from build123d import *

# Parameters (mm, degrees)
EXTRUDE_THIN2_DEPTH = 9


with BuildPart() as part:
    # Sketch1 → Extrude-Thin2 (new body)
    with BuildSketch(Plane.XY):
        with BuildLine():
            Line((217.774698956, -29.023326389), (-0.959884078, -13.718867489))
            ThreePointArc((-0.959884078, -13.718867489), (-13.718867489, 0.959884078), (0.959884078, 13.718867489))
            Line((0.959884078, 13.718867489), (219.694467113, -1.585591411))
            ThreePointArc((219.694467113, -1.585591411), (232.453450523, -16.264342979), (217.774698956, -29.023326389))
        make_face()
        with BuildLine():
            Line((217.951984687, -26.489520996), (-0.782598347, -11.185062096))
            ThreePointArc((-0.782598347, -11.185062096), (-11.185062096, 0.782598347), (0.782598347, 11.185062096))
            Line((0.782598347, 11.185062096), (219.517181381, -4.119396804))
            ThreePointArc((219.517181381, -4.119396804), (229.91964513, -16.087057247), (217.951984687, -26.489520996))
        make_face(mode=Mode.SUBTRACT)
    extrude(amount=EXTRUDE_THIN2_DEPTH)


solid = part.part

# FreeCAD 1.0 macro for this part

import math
import FreeCAD as App
import Part
import Sketcher
Q = App.Units.Quantity

doc = App.newDocument("Part")
body = doc.addObject("PartDesign::Body", "Body")

# Sketch on XY plane
sketch1 = body.newObject("Sketcher::SketchObject", "Sketch")
sketch1.AttachmentSupport = (doc.getObject("XY_Plane"), [""])
sketch1.MapMode = "FlatFace"
sketch1.addGeometry([
    Part.LineSegment(App.Vector(-0.959884, -13.718867, 0), App.Vector(217.774699, -29.023326, 0)),  # 0
    Part.ArcOfCircle(Part.Circle(App.Vector(218.734583, -15.304459, 0), App.Vector(0, 0, 1), 13.752407), math.radians(-94.002358), math.radians(85.997642)),  # 1
    Part.LineSegment(App.Vector(219.694467, -1.585591, 0), App.Vector(0.959884, 13.718867, 0)),  # 2
    Part.ArcOfCircle(Part.Circle(App.Vector(0, 0, 0), App.Vector(0, 0, 1), 13.752407), math.radians(85.997642), math.radians(265.997642)),  # 3
    Part.LineSegment(App.Vector(217.951985, -26.489521, 0), App.Vector(-0.782598, -11.185062, 0)),  # 4
    Part.ArcOfCircle(Part.Circle(App.Vector(0, 0, 0), App.Vector(0, 0, 1), 11.212407), math.radians(85.997642), math.radians(265.997642)),  # 5
    Part.LineSegment(App.Vector(0.782598, 11.185062, 0), App.Vector(219.517181, -4.119397, 0)),  # 6
    Part.ArcOfCircle(Part.Circle(App.Vector(218.734583, -15.304459, 0), App.Vector(0, 0, 1), 11.212407), math.radians(-94.002358), math.radians(85.997642)),  # 7
], False)
sketch1.addConstraint([
    Sketcher.Constraint("Tangent", 0, 2, 1, 1),
    Sketcher.Constraint("Tangent", 1, 2, 2, 1),
    Sketcher.Constraint("Tangent", 2, 2, 3, 1),
    Sketcher.Constraint("Tangent", 3, 2, 0, 1),
    Sketcher.Constraint("Tangent", 4, 2, 5, 2),
    Sketcher.Constraint("Tangent", 5, 1, 6, 1),
    Sketcher.Constraint("Tangent", 6, 2, 7, 2),
    Sketcher.Constraint("Tangent", 7, 1, 4, 1),
    Sketcher.Constraint("Coincident", 3, 3, -1, 1),
    Sketcher.Constraint("Coincident", 5, 3, -1, 1),
    Sketcher.Constraint("Coincident", 7, 3, 1, 3),
    Sketcher.Constraint("Equal", 1, 3),
    Sketcher.Constraint("Equal", 5, 7),
    Sketcher.Constraint("Radius", 1, Q("13.752407 mm")),
    Sketcher.Constraint("Radius", 5, Q("11.212407 mm")),
    Sketcher.Constraint("DistanceX", -1, 1, 0, 2, Q("217.774699 mm")),
    Sketcher.Constraint("DistanceX", 4, 2, -1, 1, Q("0.782598 mm")),
])
pad1 = body.newObject("PartDesign::Pad", "Pad")
pad1.Profile = sketch1
pad1.Length = 9

doc.recompute()
